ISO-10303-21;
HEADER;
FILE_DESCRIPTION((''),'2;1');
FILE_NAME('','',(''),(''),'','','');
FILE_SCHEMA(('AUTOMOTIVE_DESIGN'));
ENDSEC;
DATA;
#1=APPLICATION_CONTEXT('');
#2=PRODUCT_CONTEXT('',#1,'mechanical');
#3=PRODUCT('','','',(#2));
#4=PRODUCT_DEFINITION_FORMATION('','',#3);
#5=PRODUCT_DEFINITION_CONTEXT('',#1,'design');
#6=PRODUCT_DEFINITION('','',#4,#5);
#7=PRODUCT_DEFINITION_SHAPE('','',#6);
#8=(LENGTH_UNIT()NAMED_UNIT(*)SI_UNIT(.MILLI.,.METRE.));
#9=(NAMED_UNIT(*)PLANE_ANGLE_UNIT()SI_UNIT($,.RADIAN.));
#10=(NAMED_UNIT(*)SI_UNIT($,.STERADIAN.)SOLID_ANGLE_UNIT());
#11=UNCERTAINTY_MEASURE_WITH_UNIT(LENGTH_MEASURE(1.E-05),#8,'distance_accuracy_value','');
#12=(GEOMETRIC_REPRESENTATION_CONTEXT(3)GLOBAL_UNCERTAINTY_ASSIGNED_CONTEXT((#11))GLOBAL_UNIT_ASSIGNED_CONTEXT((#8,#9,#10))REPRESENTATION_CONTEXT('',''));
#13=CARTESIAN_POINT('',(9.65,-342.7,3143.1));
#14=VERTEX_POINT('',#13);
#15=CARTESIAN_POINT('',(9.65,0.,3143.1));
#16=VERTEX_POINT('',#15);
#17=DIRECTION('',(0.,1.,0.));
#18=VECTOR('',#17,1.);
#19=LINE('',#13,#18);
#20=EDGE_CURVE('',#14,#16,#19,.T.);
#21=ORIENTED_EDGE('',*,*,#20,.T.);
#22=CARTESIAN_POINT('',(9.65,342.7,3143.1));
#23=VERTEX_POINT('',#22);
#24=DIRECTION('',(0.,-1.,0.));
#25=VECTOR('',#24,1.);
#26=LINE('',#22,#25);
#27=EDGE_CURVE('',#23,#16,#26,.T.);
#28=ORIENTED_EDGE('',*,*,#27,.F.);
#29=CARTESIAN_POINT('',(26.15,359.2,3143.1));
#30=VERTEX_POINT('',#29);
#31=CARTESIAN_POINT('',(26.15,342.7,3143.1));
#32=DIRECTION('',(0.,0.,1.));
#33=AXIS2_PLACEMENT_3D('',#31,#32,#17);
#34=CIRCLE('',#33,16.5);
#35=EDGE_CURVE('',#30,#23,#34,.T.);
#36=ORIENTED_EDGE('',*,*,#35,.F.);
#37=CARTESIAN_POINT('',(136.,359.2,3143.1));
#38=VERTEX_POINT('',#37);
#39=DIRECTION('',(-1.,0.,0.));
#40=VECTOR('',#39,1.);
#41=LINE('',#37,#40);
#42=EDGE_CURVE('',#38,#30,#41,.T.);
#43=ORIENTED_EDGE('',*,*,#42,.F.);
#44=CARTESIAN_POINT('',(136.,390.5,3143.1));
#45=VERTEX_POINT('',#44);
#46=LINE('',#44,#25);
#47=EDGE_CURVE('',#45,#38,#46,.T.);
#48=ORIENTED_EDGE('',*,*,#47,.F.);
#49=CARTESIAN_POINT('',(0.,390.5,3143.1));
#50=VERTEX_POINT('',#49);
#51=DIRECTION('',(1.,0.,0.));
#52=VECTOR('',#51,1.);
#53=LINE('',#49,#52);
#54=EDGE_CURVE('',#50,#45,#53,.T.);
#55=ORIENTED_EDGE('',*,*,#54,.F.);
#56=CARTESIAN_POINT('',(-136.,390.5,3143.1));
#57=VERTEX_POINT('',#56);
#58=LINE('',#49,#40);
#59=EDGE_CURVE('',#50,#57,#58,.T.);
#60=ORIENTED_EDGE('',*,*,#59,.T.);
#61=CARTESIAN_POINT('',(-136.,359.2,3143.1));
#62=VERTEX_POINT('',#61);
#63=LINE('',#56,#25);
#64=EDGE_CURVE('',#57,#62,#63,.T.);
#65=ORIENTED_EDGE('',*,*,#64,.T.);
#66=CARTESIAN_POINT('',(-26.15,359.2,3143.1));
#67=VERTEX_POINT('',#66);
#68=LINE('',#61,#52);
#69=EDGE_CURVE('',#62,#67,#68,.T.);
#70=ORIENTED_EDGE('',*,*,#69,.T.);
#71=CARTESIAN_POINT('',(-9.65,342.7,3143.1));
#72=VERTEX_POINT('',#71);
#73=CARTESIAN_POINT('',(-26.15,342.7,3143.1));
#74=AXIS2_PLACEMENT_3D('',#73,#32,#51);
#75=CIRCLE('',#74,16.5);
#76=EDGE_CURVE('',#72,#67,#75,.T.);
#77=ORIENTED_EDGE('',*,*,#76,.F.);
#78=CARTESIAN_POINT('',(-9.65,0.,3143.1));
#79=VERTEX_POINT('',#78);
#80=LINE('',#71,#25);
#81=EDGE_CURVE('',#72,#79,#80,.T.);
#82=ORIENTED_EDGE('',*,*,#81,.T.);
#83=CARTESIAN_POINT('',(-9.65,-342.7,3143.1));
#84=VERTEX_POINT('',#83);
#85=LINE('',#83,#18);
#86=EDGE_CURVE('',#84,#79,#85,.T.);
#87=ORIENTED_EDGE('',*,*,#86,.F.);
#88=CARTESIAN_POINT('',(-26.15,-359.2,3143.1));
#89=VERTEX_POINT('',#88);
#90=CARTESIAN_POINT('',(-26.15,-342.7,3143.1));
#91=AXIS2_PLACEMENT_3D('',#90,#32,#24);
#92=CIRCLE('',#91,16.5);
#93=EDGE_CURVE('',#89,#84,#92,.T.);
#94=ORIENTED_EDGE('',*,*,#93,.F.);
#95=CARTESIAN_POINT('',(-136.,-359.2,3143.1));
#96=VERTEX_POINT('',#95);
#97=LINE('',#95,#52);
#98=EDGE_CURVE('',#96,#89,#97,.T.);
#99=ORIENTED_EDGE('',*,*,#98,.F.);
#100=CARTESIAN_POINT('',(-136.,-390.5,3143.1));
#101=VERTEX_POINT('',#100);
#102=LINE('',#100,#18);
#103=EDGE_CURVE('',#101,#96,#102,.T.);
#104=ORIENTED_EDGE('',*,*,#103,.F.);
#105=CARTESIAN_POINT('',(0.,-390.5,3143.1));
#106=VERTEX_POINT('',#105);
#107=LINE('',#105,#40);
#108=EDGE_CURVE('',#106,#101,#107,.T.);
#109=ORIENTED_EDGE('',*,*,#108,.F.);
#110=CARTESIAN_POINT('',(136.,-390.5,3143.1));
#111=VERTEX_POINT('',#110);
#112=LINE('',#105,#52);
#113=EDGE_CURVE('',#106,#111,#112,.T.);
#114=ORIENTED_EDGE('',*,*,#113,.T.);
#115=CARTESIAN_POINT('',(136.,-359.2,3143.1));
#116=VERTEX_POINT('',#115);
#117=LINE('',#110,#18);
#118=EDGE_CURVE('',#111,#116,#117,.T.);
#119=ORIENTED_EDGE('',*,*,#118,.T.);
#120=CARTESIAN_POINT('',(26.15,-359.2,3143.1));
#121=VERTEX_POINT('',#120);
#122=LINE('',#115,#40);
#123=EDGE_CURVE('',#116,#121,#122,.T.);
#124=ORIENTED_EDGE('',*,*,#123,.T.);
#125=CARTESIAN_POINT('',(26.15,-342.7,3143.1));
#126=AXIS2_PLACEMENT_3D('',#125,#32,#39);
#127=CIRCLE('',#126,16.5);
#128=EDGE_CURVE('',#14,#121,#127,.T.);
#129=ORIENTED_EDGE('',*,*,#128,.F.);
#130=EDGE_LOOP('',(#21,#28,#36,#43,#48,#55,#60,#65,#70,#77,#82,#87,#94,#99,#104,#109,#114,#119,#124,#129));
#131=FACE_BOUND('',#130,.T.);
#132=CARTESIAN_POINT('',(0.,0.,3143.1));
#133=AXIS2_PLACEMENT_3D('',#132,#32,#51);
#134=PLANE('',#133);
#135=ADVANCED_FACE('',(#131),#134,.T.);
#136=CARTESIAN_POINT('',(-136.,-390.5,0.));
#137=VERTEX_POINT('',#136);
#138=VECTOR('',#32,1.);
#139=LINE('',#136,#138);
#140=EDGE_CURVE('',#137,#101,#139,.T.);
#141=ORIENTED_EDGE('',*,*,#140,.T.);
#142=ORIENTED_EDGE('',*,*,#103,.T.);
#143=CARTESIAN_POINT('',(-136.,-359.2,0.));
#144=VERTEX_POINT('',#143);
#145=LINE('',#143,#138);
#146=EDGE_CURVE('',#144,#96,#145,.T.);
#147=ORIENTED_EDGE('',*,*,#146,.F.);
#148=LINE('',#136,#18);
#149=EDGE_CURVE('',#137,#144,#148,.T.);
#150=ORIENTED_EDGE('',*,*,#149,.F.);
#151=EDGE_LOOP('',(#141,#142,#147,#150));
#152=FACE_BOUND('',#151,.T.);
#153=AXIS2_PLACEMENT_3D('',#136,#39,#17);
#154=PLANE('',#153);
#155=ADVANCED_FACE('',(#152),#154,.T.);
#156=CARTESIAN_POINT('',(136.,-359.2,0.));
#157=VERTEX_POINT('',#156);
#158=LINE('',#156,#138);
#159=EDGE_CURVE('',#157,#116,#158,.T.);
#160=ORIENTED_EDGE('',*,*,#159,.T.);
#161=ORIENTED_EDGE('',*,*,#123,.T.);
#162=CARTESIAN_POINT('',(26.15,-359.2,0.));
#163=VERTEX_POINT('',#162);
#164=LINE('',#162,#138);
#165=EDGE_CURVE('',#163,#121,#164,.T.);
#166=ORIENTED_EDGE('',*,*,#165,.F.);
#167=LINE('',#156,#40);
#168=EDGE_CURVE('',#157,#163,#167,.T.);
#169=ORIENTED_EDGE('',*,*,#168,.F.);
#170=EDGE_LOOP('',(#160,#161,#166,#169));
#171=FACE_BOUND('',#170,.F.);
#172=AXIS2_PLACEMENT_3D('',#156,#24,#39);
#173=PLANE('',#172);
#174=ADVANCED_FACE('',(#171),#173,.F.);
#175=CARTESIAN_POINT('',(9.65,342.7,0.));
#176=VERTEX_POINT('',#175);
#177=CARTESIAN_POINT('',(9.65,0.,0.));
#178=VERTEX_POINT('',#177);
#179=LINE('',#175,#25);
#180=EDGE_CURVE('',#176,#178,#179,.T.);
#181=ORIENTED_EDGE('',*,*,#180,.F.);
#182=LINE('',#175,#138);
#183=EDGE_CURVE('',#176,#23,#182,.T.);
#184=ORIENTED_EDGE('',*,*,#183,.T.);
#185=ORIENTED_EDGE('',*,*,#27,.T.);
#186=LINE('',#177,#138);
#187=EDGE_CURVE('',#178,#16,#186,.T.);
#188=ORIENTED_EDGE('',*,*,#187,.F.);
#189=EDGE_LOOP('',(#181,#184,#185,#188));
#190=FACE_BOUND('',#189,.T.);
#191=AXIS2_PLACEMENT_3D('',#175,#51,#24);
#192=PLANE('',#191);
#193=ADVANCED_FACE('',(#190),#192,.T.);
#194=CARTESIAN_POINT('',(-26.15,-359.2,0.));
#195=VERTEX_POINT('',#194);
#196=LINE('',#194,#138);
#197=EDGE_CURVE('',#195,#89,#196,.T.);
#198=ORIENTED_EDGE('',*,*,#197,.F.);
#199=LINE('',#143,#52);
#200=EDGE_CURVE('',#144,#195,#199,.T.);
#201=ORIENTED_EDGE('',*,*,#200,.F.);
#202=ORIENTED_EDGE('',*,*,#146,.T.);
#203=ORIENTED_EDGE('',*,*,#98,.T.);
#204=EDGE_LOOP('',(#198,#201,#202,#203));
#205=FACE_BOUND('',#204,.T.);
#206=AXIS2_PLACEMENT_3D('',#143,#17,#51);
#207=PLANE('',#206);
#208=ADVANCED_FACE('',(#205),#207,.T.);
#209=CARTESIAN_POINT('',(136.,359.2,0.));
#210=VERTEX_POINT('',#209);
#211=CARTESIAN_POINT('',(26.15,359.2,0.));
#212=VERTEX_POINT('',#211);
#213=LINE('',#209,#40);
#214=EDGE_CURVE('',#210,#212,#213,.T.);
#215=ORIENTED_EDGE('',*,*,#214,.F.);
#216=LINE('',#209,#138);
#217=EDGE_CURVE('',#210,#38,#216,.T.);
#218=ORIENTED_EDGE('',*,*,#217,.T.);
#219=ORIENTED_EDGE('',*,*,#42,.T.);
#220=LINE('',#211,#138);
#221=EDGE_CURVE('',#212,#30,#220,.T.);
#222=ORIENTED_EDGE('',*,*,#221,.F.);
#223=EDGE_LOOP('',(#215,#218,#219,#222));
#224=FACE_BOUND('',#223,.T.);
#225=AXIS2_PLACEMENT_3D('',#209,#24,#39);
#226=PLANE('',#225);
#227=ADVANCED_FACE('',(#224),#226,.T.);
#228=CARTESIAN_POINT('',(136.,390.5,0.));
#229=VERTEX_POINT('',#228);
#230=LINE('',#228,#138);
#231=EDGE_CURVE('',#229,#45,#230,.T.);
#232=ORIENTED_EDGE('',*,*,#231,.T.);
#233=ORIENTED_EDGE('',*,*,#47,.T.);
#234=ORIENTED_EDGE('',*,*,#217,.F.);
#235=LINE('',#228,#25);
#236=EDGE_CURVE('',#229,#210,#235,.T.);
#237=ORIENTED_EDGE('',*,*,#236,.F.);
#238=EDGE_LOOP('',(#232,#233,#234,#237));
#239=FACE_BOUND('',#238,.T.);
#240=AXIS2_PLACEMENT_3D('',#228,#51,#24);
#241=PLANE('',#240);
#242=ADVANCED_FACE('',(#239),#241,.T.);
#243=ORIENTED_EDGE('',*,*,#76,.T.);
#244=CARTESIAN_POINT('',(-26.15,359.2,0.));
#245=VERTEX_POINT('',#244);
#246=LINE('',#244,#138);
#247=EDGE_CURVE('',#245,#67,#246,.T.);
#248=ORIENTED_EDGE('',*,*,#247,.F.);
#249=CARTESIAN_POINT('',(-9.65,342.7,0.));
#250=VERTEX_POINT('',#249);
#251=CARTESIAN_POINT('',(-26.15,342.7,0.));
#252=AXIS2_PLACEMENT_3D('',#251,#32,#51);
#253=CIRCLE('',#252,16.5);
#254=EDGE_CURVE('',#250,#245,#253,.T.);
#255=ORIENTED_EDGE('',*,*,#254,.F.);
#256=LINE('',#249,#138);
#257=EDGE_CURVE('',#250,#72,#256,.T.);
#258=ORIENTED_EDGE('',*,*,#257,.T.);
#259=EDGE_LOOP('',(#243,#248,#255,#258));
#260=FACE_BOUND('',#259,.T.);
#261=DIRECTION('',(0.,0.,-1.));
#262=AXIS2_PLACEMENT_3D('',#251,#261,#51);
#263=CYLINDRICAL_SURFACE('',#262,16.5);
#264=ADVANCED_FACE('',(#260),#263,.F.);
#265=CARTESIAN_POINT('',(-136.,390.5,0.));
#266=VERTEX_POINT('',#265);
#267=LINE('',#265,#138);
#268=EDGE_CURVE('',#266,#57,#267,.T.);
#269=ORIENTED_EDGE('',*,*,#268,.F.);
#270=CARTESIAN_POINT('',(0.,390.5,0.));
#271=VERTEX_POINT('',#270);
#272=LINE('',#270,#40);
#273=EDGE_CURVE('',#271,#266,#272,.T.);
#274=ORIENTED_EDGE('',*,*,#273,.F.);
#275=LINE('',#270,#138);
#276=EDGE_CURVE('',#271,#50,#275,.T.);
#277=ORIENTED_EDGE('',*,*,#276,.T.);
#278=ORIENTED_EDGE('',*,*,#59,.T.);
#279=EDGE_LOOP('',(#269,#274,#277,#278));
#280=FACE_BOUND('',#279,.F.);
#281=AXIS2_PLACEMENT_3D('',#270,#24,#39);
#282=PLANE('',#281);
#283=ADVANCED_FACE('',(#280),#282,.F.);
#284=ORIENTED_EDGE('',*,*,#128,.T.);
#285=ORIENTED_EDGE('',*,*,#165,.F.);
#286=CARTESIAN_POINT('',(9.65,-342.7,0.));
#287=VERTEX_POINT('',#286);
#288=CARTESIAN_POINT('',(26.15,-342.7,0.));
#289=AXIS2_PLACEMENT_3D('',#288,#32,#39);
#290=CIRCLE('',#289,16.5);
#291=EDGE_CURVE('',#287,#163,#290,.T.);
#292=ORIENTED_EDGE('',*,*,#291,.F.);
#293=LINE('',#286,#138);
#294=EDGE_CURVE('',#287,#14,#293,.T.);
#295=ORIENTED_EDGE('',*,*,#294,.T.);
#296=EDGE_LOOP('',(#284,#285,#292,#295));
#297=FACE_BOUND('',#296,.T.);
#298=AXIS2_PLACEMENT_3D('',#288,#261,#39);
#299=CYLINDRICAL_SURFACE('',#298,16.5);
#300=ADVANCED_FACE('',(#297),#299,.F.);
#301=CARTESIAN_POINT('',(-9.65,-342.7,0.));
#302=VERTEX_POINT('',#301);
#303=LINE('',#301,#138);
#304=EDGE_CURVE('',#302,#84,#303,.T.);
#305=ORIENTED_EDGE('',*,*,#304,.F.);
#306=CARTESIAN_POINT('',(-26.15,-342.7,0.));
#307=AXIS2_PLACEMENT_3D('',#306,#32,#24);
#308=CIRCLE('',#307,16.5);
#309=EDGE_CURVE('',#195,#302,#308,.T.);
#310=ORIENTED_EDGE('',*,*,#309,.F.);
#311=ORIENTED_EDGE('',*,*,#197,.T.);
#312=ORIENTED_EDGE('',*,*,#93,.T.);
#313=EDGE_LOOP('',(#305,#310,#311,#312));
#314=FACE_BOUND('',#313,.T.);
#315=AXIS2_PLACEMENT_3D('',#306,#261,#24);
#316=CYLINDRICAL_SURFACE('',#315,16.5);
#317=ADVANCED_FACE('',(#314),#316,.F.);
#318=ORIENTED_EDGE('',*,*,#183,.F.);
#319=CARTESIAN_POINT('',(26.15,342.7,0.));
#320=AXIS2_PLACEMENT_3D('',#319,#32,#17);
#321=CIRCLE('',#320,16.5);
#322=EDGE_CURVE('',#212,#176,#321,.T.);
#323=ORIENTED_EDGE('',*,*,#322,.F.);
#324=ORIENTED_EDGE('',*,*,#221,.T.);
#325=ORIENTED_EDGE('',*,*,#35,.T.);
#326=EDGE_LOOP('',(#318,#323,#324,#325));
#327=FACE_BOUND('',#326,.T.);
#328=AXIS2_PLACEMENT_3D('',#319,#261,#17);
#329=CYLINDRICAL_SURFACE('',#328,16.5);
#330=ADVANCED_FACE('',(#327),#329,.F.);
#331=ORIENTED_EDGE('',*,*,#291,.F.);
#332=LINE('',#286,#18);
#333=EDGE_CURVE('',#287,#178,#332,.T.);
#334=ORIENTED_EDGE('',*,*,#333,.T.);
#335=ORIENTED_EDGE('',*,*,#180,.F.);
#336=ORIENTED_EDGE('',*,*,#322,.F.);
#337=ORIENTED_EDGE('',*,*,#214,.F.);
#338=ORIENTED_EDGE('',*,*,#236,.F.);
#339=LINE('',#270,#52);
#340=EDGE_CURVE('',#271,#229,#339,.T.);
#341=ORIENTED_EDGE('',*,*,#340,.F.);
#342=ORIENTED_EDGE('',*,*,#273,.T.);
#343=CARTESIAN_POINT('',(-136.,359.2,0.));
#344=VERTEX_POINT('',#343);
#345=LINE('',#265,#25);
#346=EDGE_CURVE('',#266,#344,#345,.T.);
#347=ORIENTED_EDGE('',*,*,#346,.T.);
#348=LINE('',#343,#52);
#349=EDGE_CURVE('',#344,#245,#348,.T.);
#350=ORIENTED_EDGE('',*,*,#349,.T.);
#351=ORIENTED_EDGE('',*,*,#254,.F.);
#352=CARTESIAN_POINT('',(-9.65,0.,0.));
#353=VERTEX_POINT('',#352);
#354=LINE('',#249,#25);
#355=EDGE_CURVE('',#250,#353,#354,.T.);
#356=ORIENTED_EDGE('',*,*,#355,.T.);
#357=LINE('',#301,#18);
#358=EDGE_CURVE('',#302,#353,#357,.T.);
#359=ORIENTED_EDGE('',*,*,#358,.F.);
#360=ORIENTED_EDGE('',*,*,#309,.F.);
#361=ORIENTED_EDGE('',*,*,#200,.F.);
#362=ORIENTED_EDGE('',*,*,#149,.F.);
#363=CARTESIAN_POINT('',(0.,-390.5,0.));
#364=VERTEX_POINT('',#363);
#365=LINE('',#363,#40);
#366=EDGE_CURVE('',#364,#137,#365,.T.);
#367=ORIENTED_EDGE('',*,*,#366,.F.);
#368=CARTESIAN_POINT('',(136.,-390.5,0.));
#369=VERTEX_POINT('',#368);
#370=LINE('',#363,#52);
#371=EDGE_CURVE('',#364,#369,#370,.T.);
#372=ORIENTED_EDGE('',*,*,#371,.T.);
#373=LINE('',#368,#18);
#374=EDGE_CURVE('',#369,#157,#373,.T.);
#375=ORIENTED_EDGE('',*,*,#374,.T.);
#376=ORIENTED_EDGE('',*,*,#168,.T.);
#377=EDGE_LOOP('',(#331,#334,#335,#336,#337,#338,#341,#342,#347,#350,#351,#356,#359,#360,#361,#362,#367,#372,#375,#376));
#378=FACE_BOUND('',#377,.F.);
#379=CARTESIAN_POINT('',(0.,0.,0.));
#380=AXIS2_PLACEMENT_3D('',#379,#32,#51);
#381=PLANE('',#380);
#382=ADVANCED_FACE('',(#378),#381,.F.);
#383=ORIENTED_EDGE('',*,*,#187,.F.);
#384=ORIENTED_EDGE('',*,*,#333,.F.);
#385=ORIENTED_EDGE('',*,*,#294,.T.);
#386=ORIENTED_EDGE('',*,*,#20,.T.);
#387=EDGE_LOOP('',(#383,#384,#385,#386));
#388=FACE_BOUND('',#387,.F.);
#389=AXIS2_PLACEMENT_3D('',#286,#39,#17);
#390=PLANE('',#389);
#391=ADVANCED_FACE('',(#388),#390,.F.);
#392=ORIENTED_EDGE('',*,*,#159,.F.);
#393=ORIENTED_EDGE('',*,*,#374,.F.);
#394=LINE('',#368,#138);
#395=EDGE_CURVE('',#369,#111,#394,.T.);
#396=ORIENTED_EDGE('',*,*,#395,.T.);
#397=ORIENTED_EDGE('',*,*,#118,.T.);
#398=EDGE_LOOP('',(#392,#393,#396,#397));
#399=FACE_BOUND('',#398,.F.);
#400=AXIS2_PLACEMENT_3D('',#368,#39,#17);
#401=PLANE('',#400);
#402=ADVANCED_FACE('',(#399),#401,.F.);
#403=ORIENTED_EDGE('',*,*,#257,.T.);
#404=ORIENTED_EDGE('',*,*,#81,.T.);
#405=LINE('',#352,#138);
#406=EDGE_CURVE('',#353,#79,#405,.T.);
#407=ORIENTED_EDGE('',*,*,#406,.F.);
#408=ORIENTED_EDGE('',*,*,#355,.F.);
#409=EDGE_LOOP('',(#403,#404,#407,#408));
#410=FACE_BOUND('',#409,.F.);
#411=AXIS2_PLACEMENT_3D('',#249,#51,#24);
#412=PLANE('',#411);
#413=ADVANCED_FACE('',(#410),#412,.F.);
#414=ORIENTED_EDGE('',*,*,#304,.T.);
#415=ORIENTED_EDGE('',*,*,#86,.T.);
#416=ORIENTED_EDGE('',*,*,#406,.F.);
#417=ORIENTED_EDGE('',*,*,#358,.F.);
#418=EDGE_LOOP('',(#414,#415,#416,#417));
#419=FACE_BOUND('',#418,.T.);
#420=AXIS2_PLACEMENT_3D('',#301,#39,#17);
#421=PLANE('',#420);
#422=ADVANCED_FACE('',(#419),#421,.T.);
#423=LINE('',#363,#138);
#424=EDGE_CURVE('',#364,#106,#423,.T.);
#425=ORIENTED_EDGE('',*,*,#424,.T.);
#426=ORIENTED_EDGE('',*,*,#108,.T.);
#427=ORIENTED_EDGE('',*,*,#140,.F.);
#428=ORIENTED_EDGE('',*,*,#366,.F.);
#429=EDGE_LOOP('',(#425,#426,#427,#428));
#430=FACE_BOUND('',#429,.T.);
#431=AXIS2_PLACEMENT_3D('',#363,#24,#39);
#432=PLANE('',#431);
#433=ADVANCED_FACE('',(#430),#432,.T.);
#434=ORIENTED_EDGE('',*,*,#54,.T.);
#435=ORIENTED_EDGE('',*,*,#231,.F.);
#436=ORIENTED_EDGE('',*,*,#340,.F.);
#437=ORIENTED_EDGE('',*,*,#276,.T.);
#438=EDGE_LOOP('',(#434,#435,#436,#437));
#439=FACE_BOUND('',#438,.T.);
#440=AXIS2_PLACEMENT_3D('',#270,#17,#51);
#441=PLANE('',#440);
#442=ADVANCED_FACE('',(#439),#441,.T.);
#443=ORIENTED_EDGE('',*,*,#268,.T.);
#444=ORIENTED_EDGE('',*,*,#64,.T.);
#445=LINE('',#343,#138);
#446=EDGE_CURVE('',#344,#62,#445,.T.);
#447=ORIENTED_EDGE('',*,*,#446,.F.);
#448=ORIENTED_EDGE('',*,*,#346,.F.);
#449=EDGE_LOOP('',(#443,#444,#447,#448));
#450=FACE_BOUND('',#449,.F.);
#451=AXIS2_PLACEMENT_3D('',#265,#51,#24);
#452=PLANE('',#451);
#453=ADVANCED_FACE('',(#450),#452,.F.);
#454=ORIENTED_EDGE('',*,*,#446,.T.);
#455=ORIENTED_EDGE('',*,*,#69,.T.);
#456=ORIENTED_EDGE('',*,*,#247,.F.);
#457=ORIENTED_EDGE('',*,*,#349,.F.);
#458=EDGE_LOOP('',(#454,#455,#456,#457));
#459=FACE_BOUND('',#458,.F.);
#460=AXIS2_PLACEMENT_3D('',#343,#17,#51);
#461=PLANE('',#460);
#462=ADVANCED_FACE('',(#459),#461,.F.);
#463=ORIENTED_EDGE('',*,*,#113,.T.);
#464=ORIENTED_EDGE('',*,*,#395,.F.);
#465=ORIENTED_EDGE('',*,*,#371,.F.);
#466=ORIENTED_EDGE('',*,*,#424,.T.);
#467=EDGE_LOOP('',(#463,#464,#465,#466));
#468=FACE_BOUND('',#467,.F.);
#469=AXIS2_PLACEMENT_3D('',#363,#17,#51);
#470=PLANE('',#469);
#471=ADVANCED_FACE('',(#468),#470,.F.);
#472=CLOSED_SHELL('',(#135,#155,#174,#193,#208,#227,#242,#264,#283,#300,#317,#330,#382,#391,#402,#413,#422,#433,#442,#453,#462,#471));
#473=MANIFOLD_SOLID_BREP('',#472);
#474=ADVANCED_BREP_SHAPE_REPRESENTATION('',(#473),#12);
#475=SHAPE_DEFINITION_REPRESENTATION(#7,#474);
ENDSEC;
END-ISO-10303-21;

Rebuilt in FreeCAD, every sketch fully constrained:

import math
import FreeCAD as App
import Part
import Sketcher
from FreeCAD import Vector
Q = App.Units.Quantity

doc = App.newDocument("Part")
body = doc.addObject("PartDesign::Body", "Body")

sketch1 = body.newObject("Sketcher::SketchObject", "Sketch")
sketch1.AttachmentSupport = (doc.getObject("XY_Plane"), [""])
sketch1.MapMode = "FlatFace"
sketch1.addGeometry(Part.LineSegment(Vector(-136, -359, 0), Vector(-136, -390, 0)), False)
sketch1.addGeometry(Part.LineSegment(Vector(-136, -390, 0), Vector(136, -390, 0)), False)
sketch1.addGeometry(Part.LineSegment(Vector(136, -390, 0), Vector(136, -359, 0)), False)
sketch1.addGeometry(Part.LineSegment(Vector(136, -359, 0), Vector(26, -359, 0)), False)
sketch1.addGeometry(Part.ArcOfCircle(Part.Circle(Vector(26, -343, 0), Vector(0, 0, 1), 16), math.radians(180), math.radians(270)), False)
sketch1.addGeometry(Part.LineSegment(Vector(10, -343, 0), Vector(10, 343, 0)), False)
sketch1.addGeometry(Part.ArcOfCircle(Part.Circle(Vector(26, 343, 0), Vector(0, 0, 1), 16), math.radians(90), math.radians(180)), False)
sketch1.addGeometry(Part.LineSegment(Vector(26, 359, 0), Vector(136, 359, 0)), False)
sketch1.addGeometry(Part.LineSegment(Vector(136, 359, 0), Vector(136, 390, 0)), False)
sketch1.addGeometry(Part.LineSegment(Vector(136, 390, 0), Vector(-136, 390, 0)), False)
sketch1.addGeometry(Part.LineSegment(Vector(-136, 390, 0), Vector(-136, 359, 0)), False)
sketch1.addGeometry(Part.LineSegment(Vector(-136, 359, 0), Vector(-26, 359, 0)), False)
sketch1.addGeometry(Part.ArcOfCircle(Part.Circle(Vector(-26, 343, 0), Vector(0, 0, 1), 16), math.radians(0), math.radians(90)), False)
sketch1.addGeometry(Part.LineSegment(Vector(-10, 343, 0), Vector(-10, -343, 0)), False)
sketch1.addGeometry(Part.ArcOfCircle(Part.Circle(Vector(-26, -343, 0), Vector(0, 0, 1), 16), math.radians(-90), math.radians(0)), False)
sketch1.addGeometry(Part.LineSegment(Vector(-26, -359, 0), Vector(-136, -359, 0)), False)
sketch1.addConstraint(Sketcher.Constraint("Coincident", 0, 2, 1, 1))
sketch1.addConstraint(Sketcher.Constraint("Coincident", 1, 2, 2, 1))
sketch1.addConstraint(Sketcher.Constraint("Coincident", 2, 2, 3, 1))
sketch1.addConstraint(Sketcher.Constraint("Tangent", 3, 2, 4, 2))
sketch1.addConstraint(Sketcher.Constraint("Tangent", 4, 1, 5, 1))
sketch1.addConstraint(Sketcher.Constraint("Tangent", 5, 2, 6, 2))
sketch1.addConstraint(Sketcher.Constraint("Tangent", 6, 1, 7, 1))
sketch1.addConstraint(Sketcher.Constraint("Coincident", 7, 2, 8, 1))
sketch1.addConstraint(Sketcher.Constraint("Coincident", 8, 2, 9, 1))
sketch1.addConstraint(Sketcher.Constraint("Coincident", 9, 2, 10, 1))
sketch1.addConstraint(Sketcher.Constraint("Coincident", 10, 2, 11, 1))
sketch1.addConstraint(Sketcher.Constraint("Tangent", 11, 2, 12, 2))
sketch1.addConstraint(Sketcher.Constraint("Tangent", 12, 1, 13, 1))
sketch1.addConstraint(Sketcher.Constraint("Tangent", 13, 2, 14, 2))
sketch1.addConstraint(Sketcher.Constraint("Tangent", 14, 1, 15, 1))
sketch1.addConstraint(Sketcher.Constraint("Coincident", 15, 2, 0, 1))
sketch1.addConstraint(Sketcher.Constraint("Vertical", 0))
sketch1.addConstraint(Sketcher.Constraint("Horizontal", 1))
sketch1.addConstraint(Sketcher.Constraint("Vertical", 2))
sketch1.addConstraint(Sketcher.Constraint("Horizontal", 3))
sketch1.addConstraint(Sketcher.Constraint("Vertical", 5))
sketch1.addConstraint(Sketcher.Constraint("Horizontal", 7))
sketch1.addConstraint(Sketcher.Constraint("Vertical", 8))
sketch1.addConstraint(Sketcher.Constraint("Horizontal", 9))
sketch1.addConstraint(Sketcher.Constraint("Vertical", 10))
sketch1.addConstraint(Sketcher.Constraint("Horizontal", 11))
sketch1.addConstraint(Sketcher.Constraint("Vertical", 13))
sketch1.addConstraint(Sketcher.Constraint("Horizontal", 15))
sketch1.addConstraint(Sketcher.Constraint("Equal", 4, 6))
sketch1.addConstraint(Sketcher.Constraint("Equal", 6, 12))
sketch1.addConstraint(Sketcher.Constraint("Equal", 12, 14))
sketch1.addConstraint(Sketcher.Constraint("Symmetric", 4, 3, 12, 3, -1, 1))
sketch1.addConstraint(Sketcher.Constraint("Symmetric", 0, 2, 8, 2, -1, 1))
sketch1.addConstraint(Sketcher.Constraint("Symmetric", 7, 2, 10, 2, -2))
sketch1.addConstraint(Sketcher.Constraint("Symmetric", 2, 2, 15, 2, -2))
sketch1.addConstraint(Sketcher.Constraint("Radius", 4, Q("16.5 mm")))
sketch1.addConstraint(Sketcher.Constraint("DistanceY", 0, 2, 0, 1, Q("31.3 mm")))
sketch1.addConstraint(Sketcher.Constraint("DistanceX", 0, 2, -1, 1, Q("136 mm")))
sketch1.addConstraint(Sketcher.Constraint("DistanceY", 0, 2, -1, 1, Q("390.5 mm")))
sketch1.addConstraint(Sketcher.Constraint("DistanceX", -1, 1, 4, 1, Q("9.65 mm")))
pad1 = body.newObject("PartDesign::Pad", "Pad")
pad1.Profile = sketch1
pad1.Length = 3143.1

doc.recompute()
